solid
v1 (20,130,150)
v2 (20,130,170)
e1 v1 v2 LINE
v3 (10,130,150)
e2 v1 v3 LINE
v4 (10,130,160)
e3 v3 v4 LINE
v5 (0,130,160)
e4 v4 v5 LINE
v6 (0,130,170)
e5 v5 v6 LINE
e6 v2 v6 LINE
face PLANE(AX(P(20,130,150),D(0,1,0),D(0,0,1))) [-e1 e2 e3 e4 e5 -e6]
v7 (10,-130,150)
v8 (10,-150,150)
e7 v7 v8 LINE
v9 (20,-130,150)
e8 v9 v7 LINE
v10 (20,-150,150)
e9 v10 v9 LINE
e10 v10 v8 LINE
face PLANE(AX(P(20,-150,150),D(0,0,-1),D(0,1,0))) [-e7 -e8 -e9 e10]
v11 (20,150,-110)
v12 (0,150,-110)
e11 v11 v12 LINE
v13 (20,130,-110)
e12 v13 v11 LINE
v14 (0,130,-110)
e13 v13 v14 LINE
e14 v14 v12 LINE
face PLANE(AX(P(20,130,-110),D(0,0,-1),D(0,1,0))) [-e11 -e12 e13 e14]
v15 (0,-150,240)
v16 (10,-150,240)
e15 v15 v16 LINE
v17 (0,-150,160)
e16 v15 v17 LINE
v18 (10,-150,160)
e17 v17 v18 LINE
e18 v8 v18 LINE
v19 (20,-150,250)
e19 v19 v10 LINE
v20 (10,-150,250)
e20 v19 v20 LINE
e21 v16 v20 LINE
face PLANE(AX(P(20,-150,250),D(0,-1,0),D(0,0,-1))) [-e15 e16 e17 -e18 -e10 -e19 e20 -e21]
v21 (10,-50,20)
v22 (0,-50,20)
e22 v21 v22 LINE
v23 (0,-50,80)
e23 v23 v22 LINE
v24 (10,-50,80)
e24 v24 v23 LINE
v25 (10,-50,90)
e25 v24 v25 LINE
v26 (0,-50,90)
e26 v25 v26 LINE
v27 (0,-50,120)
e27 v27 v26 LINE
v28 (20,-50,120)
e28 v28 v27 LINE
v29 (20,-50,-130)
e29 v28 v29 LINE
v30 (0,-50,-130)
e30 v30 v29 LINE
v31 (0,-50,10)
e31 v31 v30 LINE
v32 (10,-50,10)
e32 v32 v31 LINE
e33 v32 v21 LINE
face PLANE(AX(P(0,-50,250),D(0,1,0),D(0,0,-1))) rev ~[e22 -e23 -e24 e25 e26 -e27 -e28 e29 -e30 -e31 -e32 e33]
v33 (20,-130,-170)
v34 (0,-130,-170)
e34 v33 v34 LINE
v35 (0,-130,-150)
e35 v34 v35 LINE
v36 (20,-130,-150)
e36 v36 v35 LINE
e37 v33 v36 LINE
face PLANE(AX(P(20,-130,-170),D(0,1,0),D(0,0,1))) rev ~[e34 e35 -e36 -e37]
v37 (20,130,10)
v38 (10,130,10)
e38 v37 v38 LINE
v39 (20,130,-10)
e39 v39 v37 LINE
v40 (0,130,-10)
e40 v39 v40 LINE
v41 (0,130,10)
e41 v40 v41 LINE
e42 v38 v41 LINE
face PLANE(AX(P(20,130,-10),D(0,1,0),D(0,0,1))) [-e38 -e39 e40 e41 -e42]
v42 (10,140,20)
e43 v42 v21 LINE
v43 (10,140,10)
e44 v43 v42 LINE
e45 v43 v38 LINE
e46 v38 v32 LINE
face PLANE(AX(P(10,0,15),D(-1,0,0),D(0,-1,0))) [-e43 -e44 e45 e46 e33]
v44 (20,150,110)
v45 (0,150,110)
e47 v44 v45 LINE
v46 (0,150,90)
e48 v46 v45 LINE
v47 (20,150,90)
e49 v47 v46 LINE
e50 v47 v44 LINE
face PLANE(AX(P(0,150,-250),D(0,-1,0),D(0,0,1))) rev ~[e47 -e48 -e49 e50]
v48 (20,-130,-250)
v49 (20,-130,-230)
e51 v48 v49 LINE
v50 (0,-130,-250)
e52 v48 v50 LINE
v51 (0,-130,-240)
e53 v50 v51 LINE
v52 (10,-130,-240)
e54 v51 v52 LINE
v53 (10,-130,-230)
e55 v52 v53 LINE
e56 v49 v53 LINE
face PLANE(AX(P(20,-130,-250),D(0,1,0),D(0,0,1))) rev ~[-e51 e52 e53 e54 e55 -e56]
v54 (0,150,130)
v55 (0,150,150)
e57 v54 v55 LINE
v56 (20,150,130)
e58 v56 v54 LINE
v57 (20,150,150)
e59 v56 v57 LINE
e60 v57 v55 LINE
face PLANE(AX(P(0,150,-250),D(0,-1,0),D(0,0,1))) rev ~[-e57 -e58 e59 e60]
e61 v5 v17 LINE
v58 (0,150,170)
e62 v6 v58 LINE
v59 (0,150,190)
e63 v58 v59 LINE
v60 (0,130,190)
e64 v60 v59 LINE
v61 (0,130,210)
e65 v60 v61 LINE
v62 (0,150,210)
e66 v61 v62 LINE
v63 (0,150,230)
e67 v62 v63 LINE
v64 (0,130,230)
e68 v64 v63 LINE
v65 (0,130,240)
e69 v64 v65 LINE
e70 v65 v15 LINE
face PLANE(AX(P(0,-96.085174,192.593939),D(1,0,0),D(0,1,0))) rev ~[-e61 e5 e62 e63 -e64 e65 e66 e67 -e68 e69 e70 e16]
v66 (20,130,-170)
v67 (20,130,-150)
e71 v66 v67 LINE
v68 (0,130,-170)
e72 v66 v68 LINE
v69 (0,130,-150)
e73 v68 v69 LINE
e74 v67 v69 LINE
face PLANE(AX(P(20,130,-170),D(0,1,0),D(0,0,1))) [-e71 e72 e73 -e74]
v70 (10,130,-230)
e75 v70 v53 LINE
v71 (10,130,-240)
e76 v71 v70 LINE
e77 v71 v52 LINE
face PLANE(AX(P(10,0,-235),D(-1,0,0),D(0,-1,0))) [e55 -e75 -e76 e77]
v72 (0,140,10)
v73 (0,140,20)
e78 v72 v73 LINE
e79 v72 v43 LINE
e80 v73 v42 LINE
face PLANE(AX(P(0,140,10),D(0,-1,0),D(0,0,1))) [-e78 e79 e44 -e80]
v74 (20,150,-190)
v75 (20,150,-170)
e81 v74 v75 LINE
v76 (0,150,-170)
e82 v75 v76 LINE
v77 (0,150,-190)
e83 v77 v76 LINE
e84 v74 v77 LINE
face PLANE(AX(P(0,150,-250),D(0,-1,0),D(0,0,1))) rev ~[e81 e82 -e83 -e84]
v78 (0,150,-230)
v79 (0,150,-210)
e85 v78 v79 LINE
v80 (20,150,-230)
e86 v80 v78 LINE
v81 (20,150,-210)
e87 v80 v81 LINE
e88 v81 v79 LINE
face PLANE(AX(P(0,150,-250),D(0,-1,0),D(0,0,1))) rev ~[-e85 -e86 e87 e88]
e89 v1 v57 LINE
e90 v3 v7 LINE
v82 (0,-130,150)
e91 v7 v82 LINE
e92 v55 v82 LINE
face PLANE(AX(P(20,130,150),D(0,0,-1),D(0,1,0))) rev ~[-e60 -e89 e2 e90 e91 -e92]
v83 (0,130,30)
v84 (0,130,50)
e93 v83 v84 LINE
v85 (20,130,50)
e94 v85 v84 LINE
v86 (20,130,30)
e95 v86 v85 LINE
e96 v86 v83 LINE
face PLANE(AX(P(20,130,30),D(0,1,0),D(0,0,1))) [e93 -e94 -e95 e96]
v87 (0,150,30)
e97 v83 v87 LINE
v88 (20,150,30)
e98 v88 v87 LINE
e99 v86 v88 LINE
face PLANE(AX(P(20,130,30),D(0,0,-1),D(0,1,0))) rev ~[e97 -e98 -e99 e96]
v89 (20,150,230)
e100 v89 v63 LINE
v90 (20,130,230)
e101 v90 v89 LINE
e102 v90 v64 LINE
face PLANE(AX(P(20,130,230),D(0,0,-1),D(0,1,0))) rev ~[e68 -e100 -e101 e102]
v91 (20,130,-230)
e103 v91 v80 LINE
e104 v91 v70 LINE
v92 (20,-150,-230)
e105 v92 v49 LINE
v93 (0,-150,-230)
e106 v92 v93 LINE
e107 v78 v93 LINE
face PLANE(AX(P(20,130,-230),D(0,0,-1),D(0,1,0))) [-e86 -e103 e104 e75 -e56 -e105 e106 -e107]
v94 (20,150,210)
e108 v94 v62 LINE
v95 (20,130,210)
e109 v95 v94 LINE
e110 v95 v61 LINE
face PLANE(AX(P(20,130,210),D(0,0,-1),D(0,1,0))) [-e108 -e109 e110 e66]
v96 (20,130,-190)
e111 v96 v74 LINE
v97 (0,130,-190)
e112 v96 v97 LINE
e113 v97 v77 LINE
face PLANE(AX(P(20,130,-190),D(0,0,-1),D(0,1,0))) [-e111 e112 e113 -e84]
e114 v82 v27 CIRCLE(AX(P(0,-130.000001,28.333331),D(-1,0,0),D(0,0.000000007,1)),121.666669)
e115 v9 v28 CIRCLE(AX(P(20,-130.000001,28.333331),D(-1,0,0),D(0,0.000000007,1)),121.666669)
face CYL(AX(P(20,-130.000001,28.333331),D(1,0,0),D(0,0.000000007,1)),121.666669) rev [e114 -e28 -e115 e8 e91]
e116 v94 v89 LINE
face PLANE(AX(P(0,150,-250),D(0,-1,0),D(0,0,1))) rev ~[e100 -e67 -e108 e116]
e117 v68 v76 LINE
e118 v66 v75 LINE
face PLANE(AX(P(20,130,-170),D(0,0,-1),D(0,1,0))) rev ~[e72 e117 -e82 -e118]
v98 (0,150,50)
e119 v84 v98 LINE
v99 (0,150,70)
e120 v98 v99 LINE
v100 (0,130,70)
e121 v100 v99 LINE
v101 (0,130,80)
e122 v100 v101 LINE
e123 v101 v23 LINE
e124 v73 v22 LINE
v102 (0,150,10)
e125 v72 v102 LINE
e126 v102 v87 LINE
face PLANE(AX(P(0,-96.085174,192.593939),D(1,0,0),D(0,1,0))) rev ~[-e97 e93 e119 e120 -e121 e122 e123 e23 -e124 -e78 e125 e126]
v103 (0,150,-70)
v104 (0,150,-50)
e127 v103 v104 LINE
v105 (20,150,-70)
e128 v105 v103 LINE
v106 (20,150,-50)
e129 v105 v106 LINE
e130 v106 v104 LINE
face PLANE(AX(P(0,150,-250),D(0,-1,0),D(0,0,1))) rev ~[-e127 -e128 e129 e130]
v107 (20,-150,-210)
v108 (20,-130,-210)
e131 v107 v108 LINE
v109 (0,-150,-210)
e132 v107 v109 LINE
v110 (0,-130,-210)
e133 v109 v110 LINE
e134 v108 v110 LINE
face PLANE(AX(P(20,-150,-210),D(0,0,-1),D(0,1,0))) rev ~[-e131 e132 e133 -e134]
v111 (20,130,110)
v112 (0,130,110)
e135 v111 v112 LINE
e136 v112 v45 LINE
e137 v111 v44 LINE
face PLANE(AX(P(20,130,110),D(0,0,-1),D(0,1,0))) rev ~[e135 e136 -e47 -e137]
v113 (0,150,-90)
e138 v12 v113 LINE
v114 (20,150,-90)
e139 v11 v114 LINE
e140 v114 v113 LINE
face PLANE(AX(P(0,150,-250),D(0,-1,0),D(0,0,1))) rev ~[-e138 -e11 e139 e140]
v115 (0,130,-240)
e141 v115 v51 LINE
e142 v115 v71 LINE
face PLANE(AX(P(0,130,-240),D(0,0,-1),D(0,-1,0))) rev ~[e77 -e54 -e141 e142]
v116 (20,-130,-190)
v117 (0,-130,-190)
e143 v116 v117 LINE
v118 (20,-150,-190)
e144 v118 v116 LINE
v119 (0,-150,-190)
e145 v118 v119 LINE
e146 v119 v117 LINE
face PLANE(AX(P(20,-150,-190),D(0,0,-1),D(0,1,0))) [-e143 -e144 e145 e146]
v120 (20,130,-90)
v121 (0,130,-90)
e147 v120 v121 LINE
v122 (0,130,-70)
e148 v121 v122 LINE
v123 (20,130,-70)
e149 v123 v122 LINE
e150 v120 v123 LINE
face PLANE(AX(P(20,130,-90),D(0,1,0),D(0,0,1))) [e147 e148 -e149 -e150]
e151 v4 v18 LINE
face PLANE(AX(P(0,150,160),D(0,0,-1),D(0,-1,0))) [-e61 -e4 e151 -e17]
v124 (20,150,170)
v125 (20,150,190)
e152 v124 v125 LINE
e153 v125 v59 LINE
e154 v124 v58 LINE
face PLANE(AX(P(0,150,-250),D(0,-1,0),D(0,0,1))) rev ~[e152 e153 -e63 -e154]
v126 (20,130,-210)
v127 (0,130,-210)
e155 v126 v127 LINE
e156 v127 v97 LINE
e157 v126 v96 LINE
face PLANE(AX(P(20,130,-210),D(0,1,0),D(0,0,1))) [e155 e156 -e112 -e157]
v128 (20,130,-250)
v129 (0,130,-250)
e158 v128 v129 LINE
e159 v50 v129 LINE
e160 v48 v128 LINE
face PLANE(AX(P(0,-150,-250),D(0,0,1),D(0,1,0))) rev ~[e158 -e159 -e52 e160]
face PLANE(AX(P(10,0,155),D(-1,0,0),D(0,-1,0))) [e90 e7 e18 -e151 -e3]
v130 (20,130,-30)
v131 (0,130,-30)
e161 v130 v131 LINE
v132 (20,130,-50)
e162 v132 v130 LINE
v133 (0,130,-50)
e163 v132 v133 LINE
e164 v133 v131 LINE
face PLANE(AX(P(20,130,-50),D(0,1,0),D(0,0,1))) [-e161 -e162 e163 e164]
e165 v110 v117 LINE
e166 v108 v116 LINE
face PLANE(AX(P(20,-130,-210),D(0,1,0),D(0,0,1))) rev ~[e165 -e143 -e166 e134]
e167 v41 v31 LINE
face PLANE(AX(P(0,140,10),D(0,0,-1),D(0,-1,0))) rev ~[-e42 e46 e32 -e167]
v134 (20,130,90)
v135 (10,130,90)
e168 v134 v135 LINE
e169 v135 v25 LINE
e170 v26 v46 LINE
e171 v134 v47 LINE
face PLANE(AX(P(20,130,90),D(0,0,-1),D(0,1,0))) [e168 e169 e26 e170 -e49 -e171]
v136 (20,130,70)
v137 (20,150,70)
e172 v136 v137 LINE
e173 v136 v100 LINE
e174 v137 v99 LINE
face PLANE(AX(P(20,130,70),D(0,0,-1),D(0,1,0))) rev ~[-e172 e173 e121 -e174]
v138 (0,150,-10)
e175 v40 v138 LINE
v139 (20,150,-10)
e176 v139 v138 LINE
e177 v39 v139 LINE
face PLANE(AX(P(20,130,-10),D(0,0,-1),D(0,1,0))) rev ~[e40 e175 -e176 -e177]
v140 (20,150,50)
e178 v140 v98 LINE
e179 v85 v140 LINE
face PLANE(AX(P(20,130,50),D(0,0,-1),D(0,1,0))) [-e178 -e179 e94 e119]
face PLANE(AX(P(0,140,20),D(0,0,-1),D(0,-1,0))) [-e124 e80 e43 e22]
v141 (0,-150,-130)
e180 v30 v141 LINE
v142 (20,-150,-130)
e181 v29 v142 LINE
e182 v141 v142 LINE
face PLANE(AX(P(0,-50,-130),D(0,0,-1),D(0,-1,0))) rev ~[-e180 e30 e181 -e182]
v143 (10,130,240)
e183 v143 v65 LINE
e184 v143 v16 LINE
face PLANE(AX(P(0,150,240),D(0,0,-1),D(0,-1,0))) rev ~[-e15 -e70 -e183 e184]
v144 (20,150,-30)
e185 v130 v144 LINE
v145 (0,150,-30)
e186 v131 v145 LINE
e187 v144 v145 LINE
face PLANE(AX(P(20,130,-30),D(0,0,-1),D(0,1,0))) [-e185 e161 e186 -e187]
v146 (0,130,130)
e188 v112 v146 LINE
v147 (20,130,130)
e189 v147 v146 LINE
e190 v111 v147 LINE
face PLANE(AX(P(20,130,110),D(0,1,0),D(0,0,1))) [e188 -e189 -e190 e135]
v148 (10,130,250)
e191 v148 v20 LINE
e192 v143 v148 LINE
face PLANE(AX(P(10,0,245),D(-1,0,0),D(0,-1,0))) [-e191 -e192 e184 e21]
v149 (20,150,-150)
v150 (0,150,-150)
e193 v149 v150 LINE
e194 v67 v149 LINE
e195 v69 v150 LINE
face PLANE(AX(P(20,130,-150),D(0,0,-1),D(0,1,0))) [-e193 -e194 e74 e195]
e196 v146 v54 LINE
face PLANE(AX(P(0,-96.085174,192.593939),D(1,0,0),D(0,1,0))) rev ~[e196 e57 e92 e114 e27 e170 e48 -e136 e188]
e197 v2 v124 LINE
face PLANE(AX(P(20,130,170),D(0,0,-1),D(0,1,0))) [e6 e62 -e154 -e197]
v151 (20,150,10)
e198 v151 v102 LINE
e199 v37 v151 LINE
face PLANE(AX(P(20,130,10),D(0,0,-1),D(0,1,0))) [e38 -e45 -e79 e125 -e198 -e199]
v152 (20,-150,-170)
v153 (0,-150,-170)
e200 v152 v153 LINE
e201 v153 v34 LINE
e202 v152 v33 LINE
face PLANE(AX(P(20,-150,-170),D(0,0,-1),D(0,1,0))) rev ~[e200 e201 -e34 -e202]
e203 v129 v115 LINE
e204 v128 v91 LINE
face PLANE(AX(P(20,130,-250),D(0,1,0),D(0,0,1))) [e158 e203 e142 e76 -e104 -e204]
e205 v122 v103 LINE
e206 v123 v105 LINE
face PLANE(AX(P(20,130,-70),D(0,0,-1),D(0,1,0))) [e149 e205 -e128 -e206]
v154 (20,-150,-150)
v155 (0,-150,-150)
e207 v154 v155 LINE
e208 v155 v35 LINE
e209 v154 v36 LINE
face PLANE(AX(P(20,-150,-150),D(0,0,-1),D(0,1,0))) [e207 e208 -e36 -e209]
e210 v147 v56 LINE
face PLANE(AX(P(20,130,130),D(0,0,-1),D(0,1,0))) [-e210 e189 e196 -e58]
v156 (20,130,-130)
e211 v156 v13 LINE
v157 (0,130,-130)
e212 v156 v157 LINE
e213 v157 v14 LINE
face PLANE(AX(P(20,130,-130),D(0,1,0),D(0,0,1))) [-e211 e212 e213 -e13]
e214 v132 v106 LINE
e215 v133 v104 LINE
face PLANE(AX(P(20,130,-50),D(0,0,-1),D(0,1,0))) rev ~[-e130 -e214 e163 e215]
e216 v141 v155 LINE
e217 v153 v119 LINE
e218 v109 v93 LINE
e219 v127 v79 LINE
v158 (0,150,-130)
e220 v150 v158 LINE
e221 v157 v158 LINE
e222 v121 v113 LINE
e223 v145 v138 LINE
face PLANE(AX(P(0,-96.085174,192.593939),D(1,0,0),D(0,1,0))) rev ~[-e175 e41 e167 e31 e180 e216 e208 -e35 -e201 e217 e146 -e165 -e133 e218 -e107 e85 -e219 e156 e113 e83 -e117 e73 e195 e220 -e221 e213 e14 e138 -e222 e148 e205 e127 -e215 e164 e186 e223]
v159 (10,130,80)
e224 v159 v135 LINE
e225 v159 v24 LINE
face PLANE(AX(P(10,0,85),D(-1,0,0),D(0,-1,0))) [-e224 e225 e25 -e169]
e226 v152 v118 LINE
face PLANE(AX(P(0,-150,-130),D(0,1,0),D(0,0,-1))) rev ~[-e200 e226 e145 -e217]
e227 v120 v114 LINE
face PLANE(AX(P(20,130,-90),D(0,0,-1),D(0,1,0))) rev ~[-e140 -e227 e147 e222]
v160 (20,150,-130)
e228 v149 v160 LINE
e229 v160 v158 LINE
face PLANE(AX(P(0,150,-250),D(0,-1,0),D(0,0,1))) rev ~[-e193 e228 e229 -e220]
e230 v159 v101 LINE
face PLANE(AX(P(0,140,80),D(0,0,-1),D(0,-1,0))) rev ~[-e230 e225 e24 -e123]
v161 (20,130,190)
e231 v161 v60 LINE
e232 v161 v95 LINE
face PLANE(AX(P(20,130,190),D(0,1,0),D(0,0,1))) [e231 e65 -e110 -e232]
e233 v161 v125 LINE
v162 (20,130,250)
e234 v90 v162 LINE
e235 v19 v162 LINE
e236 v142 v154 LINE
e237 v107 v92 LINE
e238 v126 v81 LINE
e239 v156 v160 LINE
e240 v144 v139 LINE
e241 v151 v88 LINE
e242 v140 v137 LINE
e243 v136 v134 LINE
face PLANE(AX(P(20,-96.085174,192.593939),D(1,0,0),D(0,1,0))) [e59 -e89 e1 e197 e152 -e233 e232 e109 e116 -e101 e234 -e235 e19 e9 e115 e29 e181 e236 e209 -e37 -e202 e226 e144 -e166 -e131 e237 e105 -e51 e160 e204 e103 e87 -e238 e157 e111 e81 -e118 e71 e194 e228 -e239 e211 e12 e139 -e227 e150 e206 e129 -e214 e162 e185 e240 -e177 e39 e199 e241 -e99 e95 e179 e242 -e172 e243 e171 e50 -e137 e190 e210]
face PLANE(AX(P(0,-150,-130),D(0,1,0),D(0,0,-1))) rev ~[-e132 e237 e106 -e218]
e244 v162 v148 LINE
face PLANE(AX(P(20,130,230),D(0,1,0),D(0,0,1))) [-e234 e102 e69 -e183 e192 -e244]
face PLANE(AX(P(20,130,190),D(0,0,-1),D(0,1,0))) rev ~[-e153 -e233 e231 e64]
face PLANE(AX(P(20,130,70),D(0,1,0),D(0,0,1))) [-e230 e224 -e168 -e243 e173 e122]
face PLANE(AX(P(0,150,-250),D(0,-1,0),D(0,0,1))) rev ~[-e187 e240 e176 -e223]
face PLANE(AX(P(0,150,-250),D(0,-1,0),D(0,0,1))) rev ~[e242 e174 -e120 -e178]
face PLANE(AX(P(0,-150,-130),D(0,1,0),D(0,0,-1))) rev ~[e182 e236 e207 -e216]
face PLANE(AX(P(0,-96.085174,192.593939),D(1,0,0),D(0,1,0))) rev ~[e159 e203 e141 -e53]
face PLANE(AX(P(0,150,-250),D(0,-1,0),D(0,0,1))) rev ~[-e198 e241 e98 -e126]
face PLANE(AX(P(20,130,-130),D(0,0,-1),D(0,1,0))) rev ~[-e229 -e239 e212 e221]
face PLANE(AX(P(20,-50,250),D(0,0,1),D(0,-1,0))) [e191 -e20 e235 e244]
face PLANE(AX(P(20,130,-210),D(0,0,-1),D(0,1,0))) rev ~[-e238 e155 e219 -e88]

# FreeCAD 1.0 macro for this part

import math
import FreeCAD as App
import Part
import Sketcher

doc = App.newDocument("Part")
body = doc.addObject("PartDesign::Body", "Body")

sketch1 = body.newObject("Sketcher::SketchObject", "Sketch")
sketch1.AttachmentSupport = (doc.getObject("YZ_Plane"), [""])
sketch1.MapMode = "FlatFace"
sketch1.addGeometry(Part.LineSegment(App.Vector(-150, -250, 0), App.Vector(150, -250, 0)), False)
sketch1.addGeometry(Part.LineSegment(App.Vector(150, -250, 0), App.Vector(150, 250, 0)), False)
sketch1.addGeometry(Part.LineSegment(App.Vector(150, 250, 0), App.Vector(-50, 250, 0)), False)
sketch1.addGeometry(Part.LineSegment(App.Vector(-50, 250, 0), App.Vector(-50, -130, 0)), False)
sketch1.addGeometry(Part.LineSegment(App.Vector(-50, -130, 0), App.Vector(-150, -130, 0)), False)
sketch1.addGeometry(Part.LineSegment(App.Vector(-150, -130, 0), App.Vector(-150, -250, 0)), False)
sketch1.addConstraint(Sketcher.Constraint("Coincident", 0, 2, 1, 1))
sketch1.addConstraint(Sketcher.Constraint("Coincident", 1, 2, 2, 1))
sketch1.addConstraint(Sketcher.Constraint("Coincident", 2, 2, 3, 1))
sketch1.addConstraint(Sketcher.Constraint("Coincident", 3, 2, 4, 1))
sketch1.addConstraint(Sketcher.Constraint("Coincident", 4, 2, 5, 1))
sketch1.addConstraint(Sketcher.Constraint("Coincident", 5, 2, 0, 1))
sketch1.addConstraint(Sketcher.Constraint("Horizontal", 0))
sketch1.addConstraint(Sketcher.Constraint("Vertical", 1))
sketch1.addConstraint(Sketcher.Constraint("Horizontal", 2))
sketch1.addConstraint(Sketcher.Constraint("Vertical", 3))
sketch1.addConstraint(Sketcher.Constraint("Horizontal", 4))
sketch1.addConstraint(Sketcher.Constraint("Vertical", 5))
sketch1.addConstraint(Sketcher.Constraint("Symmetric", 1, 2, 5, 2, -1, 1))
sketch1.addConstraint(Sketcher.Constraint("DistanceX", 0, 1, 0, 2, 300.0))
sketch1.addConstraint(Sketcher.Constraint("DistanceX", 2, 2, 2, 1, 200.0))
sketch1.addConstraint(Sketcher.Constraint("DistanceY", 1, 1, 1, 2, 500.0))
sketch1.addConstraint(Sketcher.Constraint("DistanceY", 3, 2, 3, 1, 380.0))
pad1 = body.newObject("PartDesign::Pad", "Pad")
pad1.Profile = sketch1
pad1.Length = 20

sketch2 = body.newObject("Sketcher::SketchObject", "Sketch001")
sketch2.AttachmentSupport = (doc.getObject("YZ_Plane"), [""])
sketch2.MapMode = "FlatFace"
sketch2.AttachmentOffset = App.Placement(App.Vector(0, 0, 20), App.Rotation())
sketch2.addGeometry(Part.LineSegment(App.Vector(-50, 120, 0), App.Vector(-50, 250, 0)), False)
sketch2.addGeometry(Part.LineSegment(App.Vector(-50, 250, 0), App.Vector(-150, 250, 0)), False)
sketch2.addGeometry(Part.LineSegment(App.Vector(-150, 250, 0), App.Vector(-150, 150, 0)), False)
sketch2.addGeometry(Part.LineSegment(App.Vector(-150, 150, 0), App.Vector(-130, 150, 0)), False)
sketch2.addGeometry(Part.ArcOfCircle(Part.Circle(App.Vector(-130, 28, 0), App.Vector(0, 0, 1), 122), math.radians(49), math.radians(90)), False)
sketch2.addConstraint(Sketcher.Constraint("Coincident", 0, 2, 1, 1))
sketch2.addConstraint(Sketcher.Constraint("Coincident", 1, 2, 2, 1))
sketch2.addConstraint(Sketcher.Constraint("Coincident", 2, 2, 3, 1))
sketch2.addConstraint(Sketcher.Constraint("Tangent", 3, 2, 4, 2))
sketch2.addConstraint(Sketcher.Constraint("Coincident", 4, 1, 0, 1))
sketch2.addConstraint(Sketcher.Constraint("Vertical", 0))
sketch2.addConstraint(Sketcher.Constraint("Horizontal", 1))
sketch2.addConstraint(Sketcher.Constraint("Vertical", 2))
sketch2.addConstraint(Sketcher.Constraint("Horizontal", 3))
sketch2.addConstraint(Sketcher.Constraint("Equal", 1, 2))
sketch2.addConstraint(Sketcher.Constraint("DistanceX", 1, 2, 1, 1, 100.0))
sketch2.addConstraint(Sketcher.Constraint("DistanceX", 3, 1, 3, 2, 20.0))
sketch2.addConstraint(Sketcher.Constraint("DistanceY", 0, 1, 0, 2, 130.0))
sketch2.addConstraint(Sketcher.Constraint("DistanceX", 4, 3, -1, 1, 130.000001))
sketch2.addConstraint(Sketcher.Constraint("DistanceY", -1, 1, 0, 2, 250.0))
pad2 = body.newObject("PartDesign::Pad", "Pad001")
pad2.Profile = sketch2
pad2.Length = 20
pad2.Reversed = True

sketch3 = body.newObject("Sketcher::SketchObject", "Sketch002")
sketch3.AttachmentSupport = (doc.getObject("YZ_Plane"), [""])
sketch3.MapMode = "FlatFace"
sketch3.AttachmentOffset = App.Placement(App.Vector(0, 0, 20), App.Rotation())
sketch3.addGeometry(Part.LineSegment(App.Vector(130, -190, 0), App.Vector(130, -210, 0)), False)
sketch3.addGeometry(Part.LineSegment(App.Vector(130, -210, 0), App.Vector(150, -210, 0)), False)
sketch3.addGeometry(Part.LineSegment(App.Vector(150, -210, 0), App.Vector(150, -190, 0)), False)
sketch3.addGeometry(Part.LineSegment(App.Vector(150, -190, 0), App.Vector(130, -190, 0)), False)
sketch3.addGeometry(Part.LineSegment(App.Vector(130, -150, 0), App.Vector(130, -170, 0)), False)
sketch3.addGeometry(Part.LineSegment(App.Vector(130, -170, 0), App.Vector(150, -170, 0)), False)
sketch3.addGeometry(Part.LineSegment(App.Vector(150, -170, 0), App.Vector(150, -150, 0)), False)
sketch3.addGeometry(Part.LineSegment(App.Vector(150, -150, 0), App.Vector(130, -150, 0)), False)
sketch3.addGeometry(Part.LineSegment(App.Vector(130, -110, 0), App.Vector(130, -130, 0)), False)
sketch3.addGeometry(Part.LineSegment(App.Vector(130, -130, 0), App.Vector(150, -130, 0)), False)
sketch3.addGeometry(Part.LineSegment(App.Vector(150, -130, 0), App.Vector(150, -110, 0)), False)
sketch3.addGeometry(Part.LineSegment(App.Vector(150, -110, 0), App.Vector(130, -110, 0)), False)
sketch3.addGeometry(Part.LineSegment(App.Vector(130, -70, 0), App.Vector(130, -90, 0)), False)
sketch3.addGeometry(Part.LineSegment(App.Vector(130, -90, 0), App.Vector(150, -90, 0)), False)
sketch3.addGeometry(Part.LineSegment(App.Vector(150, -90, 0), App.Vector(150, -70, 0)), False)
sketch3.addGeometry(Part.LineSegment(App.Vector(150, -70, 0), App.Vector(130, -70, 0)), False)
sketch3.addGeometry(Part.LineSegment(App.Vector(130, -30, 0), App.Vector(130, -50, 0)), False)
sketch3.addGeometry(Part.LineSegment(App.Vector(130, -50, 0), App.Vector(150, -50, 0)), False)
sketch3.addGeometry(Part.LineSegment(App.Vector(150, -50, 0), App.Vector(150, -30, 0)), False)
sketch3.addGeometry(Part.LineSegment(App.Vector(150, -30, 0), App.Vector(130, -30, 0)), False)
sketch3.addGeometry(Part.LineSegment(App.Vector(130, 10, 0), App.Vector(130, -10, 0)), False)
sketch3.addGeometry(Part.LineSegment(App.Vector(130, -10, 0), App.Vector(150, -10, 0)), False)
sketch3.addGeometry(Part.LineSegment(App.Vector(150, -10, 0), App.Vector(150, 10, 0)), False)
sketch3.addGeometry(Part.LineSegment(App.Vector(150, 10, 0), App.Vector(130, 10, 0)), False)
sketch3.addGeometry(Part.LineSegment(App.Vector(130, 50, 0), App.Vector(130, 30, 0)), False)
sketch3.addGeometry(Part.LineSegment(App.Vector(130, 30, 0), App.Vector(150, 30, 0)), False)
sketch3.addGeometry(Part.LineSegment(App.Vector(150, 30, 0), App.Vector(150, 50, 0)), False)
sketch3.addGeometry(Part.LineSegment(App.Vector(150, 50, 0), App.Vector(130, 50, 0)), False)
sketch3.addGeometry(Part.LineSegment(App.Vector(130, 90, 0), App.Vector(130, 70, 0)), False)
sketch3.addGeometry(Part.LineSegment(App.Vector(130, 70, 0), App.Vector(150, 70, 0)), False)
sketch3.addGeometry(Part.LineSegment(App.Vector(150, 70, 0), App.Vector(150, 90, 0)), False)
sketch3.addGeometry(Part.LineSegment(App.Vector(150, 90, 0), App.Vector(130, 90, 0)), False)
sketch3.addGeometry(Part.LineSegment(App.Vector(130, 130, 0), App.Vector(130, 110, 0)), False)
sketch3.addGeometry(Part.LineSegment(App.Vector(130, 110, 0), App.Vector(150, 110, 0)), False)
sketch3.addGeometry(Part.LineSegment(App.Vector(150, 110, 0), App.Vector(150, 130, 0)), False)
sketch3.addGeometry(Part.LineSegment(App.Vector(150, 130, 0), App.Vector(130, 130, 0)), False)
sketch3.addGeometry(Part.LineSegment(App.Vector(130, 170, 0), App.Vector(130, 150, 0)), False)
sketch3.addGeometry(Part.LineSegment(App.Vector(130, 150, 0), App.Vector(150, 150, 0)), False)
sketch3.addGeometry(Part.LineSegment(App.Vector(150, 150, 0), App.Vector(150, 170, 0)), False)
sketch3.addGeometry(Part.LineSegment(App.Vector(150, 170, 0), App.Vector(130, 170, 0)), False)
sketch3.addGeometry(Part.LineSegment(App.Vector(130, 210, 0), App.Vector(130, 190, 0)), False)
sketch3.addGeometry(Part.LineSegment(App.Vector(130, 190, 0), App.Vector(150, 190, 0)), False)
sketch3.addGeometry(Part.LineSegment(App.Vector(150, 190, 0), App.Vector(150, 210, 0)), False)
sketch3.addGeometry(Part.LineSegment(App.Vector(150, 210, 0), App.Vector(130, 210, 0)), False)
sketch3.addGeometry(Part.LineSegment(App.Vector(130, 250, 0), App.Vector(130, 230, 0)), False)
sketch3.addGeometry(Part.LineSegment(App.Vector(130, 230, 0), App.Vector(150, 230, 0)), False)
sketch3.addGeometry(Part.LineSegment(App.Vector(150, 230, 0), App.Vector(150, 250, 0)), False)
sketch3.addGeometry(Part.LineSegment(App.Vector(150, 250, 0), App.Vector(130, 250, 0)), False)
sketch3.addGeometry(Part.LineSegment(App.Vector(130, -230, 0), App.Vector(130, -250, 0)), False)
sketch3.addGeometry(Part.LineSegment(App.Vector(130, -250, 0), App.Vector(150, -250, 0)), False)
sketch3.addGeometry(Part.LineSegment(App.Vector(150, -250, 0), App.Vector(150, -230, 0)), False)
sketch3.addGeometry(Part.LineSegment(App.Vector(150, -230, 0), App.Vector(130, -230, 0)), False)
sketch3.addConstraint(Sketcher.Constraint("Coincident", 0, 2, 1, 1))
sketch3.addConstraint(Sketcher.Constraint("Coincident", 1, 2, 2, 1))
sketch3.addConstraint(Sketcher.Constraint("Coincident", 2, 2, 3, 1))
sketch3.addConstraint(Sketcher.Constraint("Coincident", 3, 2, 0, 1))
sketch3.addConstraint(Sketcher.Constraint("Coincident", 4, 2, 5, 1))
sketch3.addConstraint(Sketcher.Constraint("Coincident", 5, 2, 6, 1))
sketch3.addConstraint(Sketcher.Constraint("Coincident", 6, 2, 7, 1))
sketch3.addConstraint(Sketcher.Constraint("Coincident", 7, 2, 4, 1))
sketch3.addConstraint(Sketcher.Constraint("Coincident", 8, 2, 9, 1))
sketch3.addConstraint(Sketcher.Constraint("Coincident", 9, 2, 10, 1))
sketch3.addConstraint(Sketcher.Constraint("Coincident", 10, 2, 11, 1))
sketch3.addConstraint(Sketcher.Constraint("Coincident", 11, 2, 8, 1))
sketch3.addConstraint(Sketcher.Constraint("Coincident", 12, 2, 13, 1))
sketch3.addConstraint(Sketcher.Constraint("Coincident", 13, 2, 14, 1))
sketch3.addConstraint(Sketcher.Constraint("Coincident", 14, 2, 15, 1))
sketch3.addConstraint(Sketcher.Constraint("Coincident", 15, 2, 12, 1))
sketch3.addConstraint(Sketcher.Constraint("Coincident", 16, 2, 17, 1))
sketch3.addConstraint(Sketcher.Constraint("Coincident", 17, 2, 18, 1))
sketch3.addConstraint(Sketcher.Constraint("Coincident", 18, 2, 19, 1))
sketch3.addConstraint(Sketcher.Constraint("Coincident", 19, 2, 16, 1))
sketch3.addConstraint(Sketcher.Constraint("Coincident", 20, 2, 21, 1))
sketch3.addConstraint(Sketcher.Constraint("Coincident", 21, 2, 22, 1))
sketch3.addConstraint(Sketcher.Constraint("Coincident", 22, 2, 23, 1))
sketch3.addConstraint(Sketcher.Constraint("Coincident", 23, 2, 20, 1))
sketch3.addConstraint(Sketcher.Constraint("Coincident", 24, 2, 25, 1))
sketch3.addConstraint(Sketcher.Constraint("Coincident", 25, 2, 26, 1))
sketch3.addConstraint(Sketcher.Constraint("Coincident", 26, 2, 27, 1))
sketch3.addConstraint(Sketcher.Constraint("Coincident", 27, 2, 24, 1))
sketch3.addConstraint(Sketcher.Constraint("Coincident", 28, 2, 29, 1))
sketch3.addConstraint(Sketcher.Constraint("Coincident", 29, 2, 30, 1))
sketch3.addConstraint(Sketcher.Constraint("Coincident", 30, 2, 31, 1))
sketch3.addConstraint(Sketcher.Constraint("Coincident", 31, 2, 28, 1))
sketch3.addConstraint(Sketcher.Constraint("Coincident", 32, 2, 33, 1))
sketch3.addConstraint(Sketcher.Constraint("Coincident", 33, 2, 34, 1))
sketch3.addConstraint(Sketcher.Constraint("Coincident", 34, 2, 35, 1))
sketch3.addConstraint(Sketcher.Constraint("Coincident", 35, 2, 32, 1))
sketch3.addConstraint(Sketcher.Constraint("Coincident", 36, 2, 37, 1))
sketch3.addConstraint(Sketcher.Constraint("Coincident", 37, 2, 38, 1))
sketch3.addConstraint(Sketcher.Constraint("Coincident", 38, 2, 39, 1))
sketch3.addConstraint(Sketcher.Constraint("Coincident", 39, 2, 36, 1))
sketch3.addConstraint(Sketcher.Constraint("Coincident", 40, 2, 41, 1))
sketch3.addConstraint(Sketcher.Constraint("Coincident", 41, 2, 42, 1))
sketch3.addConstraint(Sketcher.Constraint("Coincident", 42, 2, 43, 1))
sketch3.addConstraint(Sketcher.Constraint("Coincident", 43, 2, 40, 1))
sketch3.addConstraint(Sketcher.Constraint("Coincident", 44, 2, 45, 1))
sketch3.addConstraint(Sketcher.Constraint("Coincident", 45, 2, 46, 1))
sketch3.addConstraint(Sketcher.Constraint("Coincident", 46, 2, 47, 1))
sketch3.addConstraint(Sketcher.Constraint("Coincident", 47, 2, 44, 1))
sketch3.addConstraint(Sketcher.Constraint("Coincident", 48, 2, 49, 1))
sketch3.addConstraint(Sketcher.Constraint("Coincident", 49, 2, 50, 1))
sketch3.addConstraint(Sketcher.Constraint("Coincident", 50, 2, 51, 1))
sketch3.addConstraint(Sketcher.Constraint("Coincident", 51, 2, 48, 1))
sketch3.addConstraint(Sketcher.Constraint("Vertical", 0))
sketch3.addConstraint(Sketcher.Constraint("Horizontal", 1))
sketch3.addConstraint(Sketcher.Constraint("Vertical", 2))
sketch3.addConstraint(Sketcher.Constraint("Horizontal", 3))
sketch3.addConstraint(Sketcher.Constraint("Vertical", 4))
sketch3.addConstraint(Sketcher.Constraint("Horizontal", 5))
sketch3.addConstraint(Sketcher.Constraint("Vertical", 6))
sketch3.addConstraint(Sketcher.Constraint("Horizontal", 7))
sketch3.addConstraint(Sketcher.Constraint("Vertical", 8))
sketch3.addConstraint(Sketcher.Constraint("Horizontal", 9))
sketch3.addConstraint(Sketcher.Constraint("Vertical", 10))
sketch3.addConstraint(Sketcher.Constraint("Horizontal", 11))
sketch3.addConstraint(Sketcher.Constraint("Vertical", 12))
sketch3.addConstraint(Sketcher.Constraint("Horizontal", 13))
sketch3.addConstraint(Sketcher.Constraint("Vertical", 14))
sketch3.addConstraint(Sketcher.Constraint("Horizontal", 15))
sketch3.addConstraint(Sketcher.Constraint("Vertical", 16))
sketch3.addConstraint(Sketcher.Constraint("Horizontal", 17))
sketch3.addConstraint(Sketcher.Constraint("Vertical", 18))
sketch3.addConstraint(Sketcher.Constraint("Horizontal", 19))
sketch3.addConstraint(Sketcher.Constraint("Vertical", 20))
sketch3.addConstraint(Sketcher.Constraint("Horizontal", 21))
sketch3.addConstraint(Sketcher.Constraint("Vertical", 22))
sketch3.addConstraint(Sketcher.Constraint("Horizontal", 23))
sketch3.addConstraint(Sketcher.Constraint("Vertical", 24))
sketch3.addConstraint(Sketcher.Constraint("Horizontal", 25))
sketch3.addConstraint(Sketcher.Constraint("Vertical", 26))
sketch3.addConstraint(Sketcher.Constraint("Horizontal", 27))
sketch3.addConstraint(Sketcher.Constraint("Vertical", 28))
sketch3.addConstraint(Sketcher.Constraint("Horizontal", 29))
sketch3.addConstraint(Sketcher.Constraint("Vertical", 30))
sketch3.addConstraint(Sketcher.Constraint("Horizontal", 31))
sketch3.addConstraint(Sketcher.Constraint("Vertical", 32))
sketch3.addConstraint(Sketcher.Constraint("Horizontal", 33))
sketch3.addConstraint(Sketcher.Constraint("Vertical", 34))
sketch3.addConstraint(Sketcher.Constraint("Horizontal", 35))
sketch3.addConstraint(Sketcher.Constraint("Vertical", 36))
sketch3.addConstraint(Sketcher.Constraint("Horizontal", 37))
sketch3.addConstraint(Sketcher.Constraint("Vertical", 38))
sketch3.addConstraint(Sketcher.Constraint("Horizontal", 39))
sketch3.addConstraint(Sketcher.Constraint("Vertical", 40))
sketch3.addConstraint(Sketcher.Constraint("Horizontal", 41))
sketch3.addConstraint(Sketcher.Constraint("Vertical", 42))
sketch3.addConstraint(Sketcher.Constraint("Horizontal", 43))
sketch3.addConstraint(Sketcher.Constraint("Vertical", 44))
sketch3.addConstraint(Sketcher.Constraint("Horizontal", 45))
sketch3.addConstraint(Sketcher.Constraint("Vertical", 46))
sketch3.addConstraint(Sketcher.Constraint("Horizontal", 47))
sketch3.addConstraint(Sketcher.Constraint("Vertical", 48))
sketch3.addConstraint(Sketcher.Constraint("Horizontal", 49))
sketch3.addConstraint(Sketcher.Constraint("Vertical", 50))
sketch3.addConstraint(Sketcher.Constraint("Horizontal", 51))
sketch3.addConstraint(Sketcher.Constraint("Symmetric", 19, 2, 24, 2, -1))
sketch3.addConstraint(Sketcher.Constraint("Symmetric", 17, 2, 26, 2, -1))
sketch3.addConstraint(Sketcher.Constraint("Symmetric", 15, 2, 28, 2, -1))
sketch3.addConstraint(Sketcher.Constraint("Symmetric", 13, 2, 30, 2, -1))
sketch3.addConstraint(Sketcher.Constraint("Symmetric", 11, 2, 32, 2, -1))
sketch3.addConstraint(Sketcher.Constraint("Symmetric", 9, 2, 34, 2, -1))
sketch3.addConstraint(Sketcher.Constraint("Symmetric", 7, 2, 36, 2, -1))
sketch3.addConstraint(Sketcher.Constraint("Symmetric", 5, 2, 38, 2, -1))
sketch3.addConstraint(Sketcher.Constraint("Symmetric", 3, 2, 40, 2, -1))
sketch3.addConstraint(Sketcher.Constraint("Symmetric", 1, 2, 42, 2, -1))
sketch3.addConstraint(Sketcher.Constraint("Symmetric", 47, 2, 48, 2, -1))
sketch3.addConstraint(Sketcher.Constraint("Symmetric", 45, 2, 50, 2, -1))
sketch3.addConstraint(Sketcher.Constraint("Vertical", 3, 2, 4, 2))
sketch3.addConstraint(Sketcher.Constraint("Vertical", 2, 2, 5, 2))
sketch3.addConstraint(Sketcher.Constraint("Vertical", 7, 2, 8, 2))
sketch3.addConstraint(Sketcher.Constraint("Vertical", 6, 2, 9, 2))
sketch3.addConstraint(Sketcher.Constraint("Vertical", 11, 2, 12, 2))
sketch3.addConstraint(Sketcher.Constraint("Vertical", 10, 2, 13, 2))
sketch3.addConstraint(Sketcher.Constraint("Vertical", 15, 2, 16, 2))
sketch3.addConstraint(Sketcher.Constraint("Vertical", 14, 2, 17, 2))
sketch3.addConstraint(Sketcher.Constraint("Vertical", 19, 2, 20, 2))
sketch3.addConstraint(Sketcher.Constraint("Vertical", 18, 2, 21, 2))
sketch3.addConstraint(Sketcher.Constraint("Vertical", 43, 2, 44, 2))
sketch3.addConstraint(Sketcher.Constraint("Vertical", 42, 2, 45, 2))
sketch3.addConstraint(Sketcher.Constraint("Equal", 51, 0))
sketch3.addConstraint(Sketcher.Constraint("Equal", 2, 4))
sketch3.addConstraint(Sketcher.Constraint("Equal", 6, 8))
sketch3.addConstraint(Sketcher.Constraint("Equal", 10, 12))
sketch3.addConstraint(Sketcher.Constraint("Equal", 14, 16))
sketch3.addConstraint(Sketcher.Constraint("Equal", 18, 20))
sketch3.addConstraint(Sketcher.Constraint("Equal", 42, 44))
sketch3.addConstraint(Sketcher.Constraint("DistanceX", 1, 1, 1, 2, 20.0))
sketch3.addConstraint(Sketcher.Constraint("DistanceX", -1, 1, 0, 2, 130.0))
sketch3.addConstraint(Sketcher.Constraint("DistanceY", 0, 2, -1, 1, 210.0))
sketch3.addConstraint(Sketcher.Constraint("DistanceY", 4, 2, -1, 1, 170.0))
sketch3.addConstraint(Sketcher.Constraint("DistanceY", 8, 2, -1, 1, 130.0))
sketch3.addConstraint(Sketcher.Constraint("DistanceY", 12, 2, -1, 1, 90.0))
sketch3.addConstraint(Sketcher.Constraint("DistanceY", 16, 2, -1, 1, 50.0))
sketch3.addConstraint(Sketcher.Constraint("DistanceY", 20, 2, -1, 1, 10.0))
sketch3.addConstraint(Sketcher.Constraint("DistanceY", -1, 1, 44, 2, 230.0))
pocket1 = body.newObject("PartDesign::Pocket", "Pocket")
pocket1.Profile = sketch3
pocket1.Type = "ThroughAll"

sketch4 = body.newObject("Sketcher::SketchObject", "Sketch003")
sketch4.AttachmentSupport = (doc.getObject("YZ_Plane"), [""])
sketch4.MapMode = "FlatFace"
sketch4.AttachmentOffset = App.Placement(App.Vector(0, 0, 20), App.Rotation())
sketch4.addGeometry(Part.LineSegment(App.Vector(-150, -190, 0), App.Vector(-150, -210, 0)), False)
sketch4.addGeometry(Part.LineSegment(App.Vector(-150, -210, 0), App.Vector(-130, -210, 0)), False)
sketch4.addGeometry(Part.LineSegment(App.Vector(-130, -210, 0), App.Vector(-130, -190, 0)), False)
sketch4.addGeometry(Part.LineSegment(App.Vector(-130, -190, 0), App.Vector(-150, -190, 0)), False)
sketch4.addGeometry(Part.LineSegment(App.Vector(-150, -150, 0), App.Vector(-150, -170, 0)), False)
sketch4.addGeometry(Part.LineSegment(App.Vector(-150, -170, 0), App.Vector(-130, -170, 0)), False)
sketch4.addGeometry(Part.LineSegment(App.Vector(-130, -170, 0), App.Vector(-130, -150, 0)), False)
sketch4.addGeometry(Part.LineSegment(App.Vector(-130, -150, 0), App.Vector(-150, -150, 0)), False)
sketch4.addGeometry(Part.LineSegment(App.Vector(-150, -230, 0), App.Vector(-150, -250, 0)), False)
sketch4.addGeometry(Part.LineSegment(App.Vector(-150, -250, 0), App.Vector(-130, -250, 0)), False)
sketch4.addGeometry(Part.LineSegment(App.Vector(-130, -250, 0), App.Vector(-130, -230, 0)), False)
sketch4.addGeometry(Part.LineSegment(App.Vector(-130, -230, 0), App.Vector(-150, -230, 0)), False)
sketch4.addConstraint(Sketcher.Constraint("Coincident", 0, 2, 1, 1))
sketch4.addConstraint(Sketcher.Constraint("Coincident", 1, 2, 2, 1))
sketch4.addConstraint(Sketcher.Constraint("Coincident", 2, 2, 3, 1))
sketch4.addConstraint(Sketcher.Constraint("Coincident", 3, 2, 0, 1))
sketch4.addConstraint(Sketcher.Constraint("Coincident", 4, 2, 5, 1))
sketch4.addConstraint(Sketcher.Constraint("Coincident", 5, 2, 6, 1))
sketch4.addConstraint(Sketcher.Constraint("Coincident", 6, 2, 7, 1))
sketch4.addConstraint(Sketcher.Constraint("Coincident", 7, 2, 4, 1))
sketch4.addConstraint(Sketcher.Constraint("Coincident", 8, 2, 9, 1))
sketch4.addConstraint(Sketcher.Constraint("Coincident", 9, 2, 10, 1))
sketch4.addConstraint(Sketcher.Constraint("Coincident", 10, 2, 11, 1))
sketch4.addConstraint(Sketcher.Constraint("Coincident", 11, 2, 8, 1))
sketch4.addConstraint(Sketcher.Constraint("Vertical", 0))
sketch4.addConstraint(Sketcher.Constraint("Horizontal", 1))
sketch4.addConstraint(Sketcher.Constraint("Vertical", 2))
sketch4.addConstraint(Sketcher.Constraint("Horizontal", 3))
sketch4.addConstraint(Sketcher.Constraint("Vertical", 4))
sketch4.addConstraint(Sketcher.Constraint("Horizontal", 5))
sketch4.addConstraint(Sketcher.Constraint("Vertical", 6))
sketch4.addConstraint(Sketcher.Constraint("Horizontal", 7))
sketch4.addConstraint(Sketcher.Constraint("Vertical", 8))
sketch4.addConstraint(Sketcher.Constraint("Horizontal", 9))
sketch4.addConstraint(Sketcher.Constraint("Vertical", 10))
sketch4.addConstraint(Sketcher.Constraint("Horizontal", 11))
sketch4.addConstraint(Sketcher.Constraint("Vertical", 3, 2, 4, 2))
sketch4.addConstraint(Sketcher.Constraint("Vertical", 2, 2, 5, 2))
sketch4.addConstraint(Sketcher.Constraint("Vertical", 7, 2, 8, 2))
sketch4.addConstraint(Sketcher.Constraint("Vertical", 6, 2, 9, 2))
sketch4.addConstraint(Sketcher.Constraint("Equal", 11, 0))
sketch4.addConstraint(Sketcher.Constraint("Equal", 2, 4))
sketch4.addConstraint(Sketcher.Constraint("Equal", 6, 8))
sketch4.addConstraint(Sketcher.Constraint("DistanceX", 1, 1, 1, 2, 20.0))
sketch4.addConstraint(Sketcher.Constraint("DistanceX", 0, 2, -1, 1, 150.0))
sketch4.addConstraint(Sketcher.Constraint("DistanceY", 0, 2, -1, 1, 210.0))
sketch4.addConstraint(Sketcher.Constraint("DistanceY", 4, 2, -1, 1, 170.0))
sketch4.addConstraint(Sketcher.Constraint("DistanceY", 8, 2, -1, 1, 250.0))
pocket2 = body.newObject("PartDesign::Pocket", "Pocket001")
pocket2.Profile = sketch4
pocket2.Type = "ThroughAll"

sketch5 = body.newObject("Sketcher::SketchObject", "Sketch004")
sketch5.AttachmentSupport = (doc.getObject("YZ_Plane"), [""])
sketch5.MapMode = "FlatFace"
sketch5.addGeometry(Part.LineSegment(App.Vector(130, -230, 0), App.Vector(130, -240, 0)), False)
sketch5.addGeometry(Part.LineSegment(App.Vector(130, -240, 0), App.Vector(-130, -240, 0)), False)
sketch5.addGeometry(Part.LineSegment(App.Vector(-130, -240, 0), App.Vector(-130, -230, 0)), False)
sketch5.addGeometry(Part.LineSegment(App.Vector(-130, -230, 0), App.Vector(130, -230, 0)), False)
sketch5.addConstraint(Sketcher.Constraint("Coincident", 0, 2, 1, 1))
sketch5.addConstraint(Sketcher.Constraint("Coincident", 1, 2, 2, 1))
sketch5.addConstraint(Sketcher.Constraint("Coincident", 2, 2, 3, 1))
sketch5.addConstraint(Sketcher.Constraint("Coincident", 3, 2, 0, 1))
sketch5.addConstraint(Sketcher.Constraint("Vertical", 0))
sketch5.addConstraint(Sketcher.Constraint("Horizontal", 1))
sketch5.addConstraint(Sketcher.Constraint("Vertical", 2))
sketch5.addConstraint(Sketcher.Constraint("Horizontal", 3))
sketch5.addConstraint(Sketcher.Constraint("DistanceX", 1, 2, 1, 1, 260.0))
sketch5.addConstraint(Sketcher.Constraint("DistanceY", 0, 2, 0, 1, 10.0))
sketch5.addConstraint(Sketcher.Constraint("DistanceX", -1, 1, 0, 2, 130.0))
sketch5.addConstraint(Sketcher.Constraint("DistanceY", 0, 2, -1, 1, 240.0))
pocket3 = body.newObject("PartDesign::Pocket", "Pocket002")
pocket3.Profile = sketch5
pocket3.Length = 10
pocket3.Reversed = True

sketch6 = body.newObject("Sketcher::SketchObject", "Sketch005")
sketch6.AttachmentSupport = (doc.getObject("YZ_Plane"), [""])
sketch6.MapMode = "FlatFace"
sketch6.addGeometry(Part.LineSegment(App.Vector(150, 250, 0), App.Vector(150, 240, 0)), False)
sketch6.addGeometry(Part.LineSegment(App.Vector(150, 240, 0), App.Vector(-150, 240, 0)), False)
sketch6.addGeometry(Part.LineSegment(App.Vector(-150, 240, 0), App.Vector(-150, 250, 0)), False)
sketch6.addGeometry(Part.LineSegment(App.Vector(-150, 250, 0), App.Vector(150, 250, 0)), False)
sketch6.addGeometry(Part.LineSegment(App.Vector(150, 160, 0), App.Vector(150, 150, 0)), False)
sketch6.addGeometry(Part.LineSegment(App.Vector(150, 150, 0), App.Vector(-150, 150, 0)), False)
sketch6.addGeometry(Part.LineSegment(App.Vector(-150, 150, 0), App.Vector(-150, 160, 0)), False)
sketch6.addGeometry(Part.LineSegment(App.Vector(-150, 160, 0), App.Vector(150, 160, 0)), False)
sketch6.addGeometry(Part.LineSegment(App.Vector(140, 90, 0), App.Vector(140, 80, 0)), False)
sketch6.addGeometry(Part.LineSegment(App.Vector(140, 80, 0), App.Vector(-140, 80, 0)), False)
sketch6.addGeometry(Part.LineSegment(App.Vector(-140, 80, 0), App.Vector(-140, 90, 0)), False)
sketch6.addGeometry(Part.LineSegment(App.Vector(-140, 90, 0), App.Vector(140, 90, 0)), False)
sketch6.addGeometry(Part.LineSegment(App.Vector(140, 20, 0), App.Vector(140, 10, 0)), False)
sketch6.addGeometry(Part.LineSegment(App.Vector(140, 10, 0), App.Vector(-140, 10, 0)), False)
sketch6.addGeometry(Part.LineSegment(App.Vector(-140, 10, 0), App.Vector(-140, 20, 0)), False)
sketch6.addGeometry(Part.LineSegment(App.Vector(-140, 20, 0), App.Vector(140, 20, 0)), False)
sketch6.addConstraint(Sketcher.Constraint("Coincident", 0, 2, 1, 1))
sketch6.addConstraint(Sketcher.Constraint("Coincident", 1, 2, 2, 1))
sketch6.addConstraint(Sketcher.Constraint("Coincident", 2, 2, 3, 1))
sketch6.addConstraint(Sketcher.Constraint("Coincident", 3, 2, 0, 1))
sketch6.addConstraint(Sketcher.Constraint("Coincident", 4, 2, 5, 1))
sketch6.addConstraint(Sketcher.Constraint("Coincident", 5, 2, 6, 1))
sketch6.addConstraint(Sketcher.Constraint("Coincident", 6, 2, 7, 1))
sketch6.addConstraint(Sketcher.Constraint("Coincident", 7, 2, 4, 1))
sketch6.addConstraint(Sketcher.Constraint("Coincident", 8, 2, 9, 1))
sketch6.addConstraint(Sketcher.Constraint("Coincident", 9, 2, 10, 1))
sketch6.addConstraint(Sketcher.Constraint("Coincident", 10, 2, 11, 1))
sketch6.addConstraint(Sketcher.Constraint("Coincident", 11, 2, 8, 1))
sketch6.addConstraint(Sketcher.Constraint("Coincident", 12, 2, 13, 1))
sketch6.addConstraint(Sketcher.Constraint("Coincident", 13, 2, 14, 1))
sketch6.addConstraint(Sketcher.Constraint("Coincident", 14, 2, 15, 1))
sketch6.addConstraint(Sketcher.Constraint("Coincident", 15, 2, 12, 1))
sketch6.addConstraint(Sketcher.Constraint("Vertical", 0))
sketch6.addConstraint(Sketcher.Constraint("Horizontal", 1))
sketch6.addConstraint(Sketcher.Constraint("Vertical", 2))
sketch6.addConstraint(Sketcher.Constraint("Horizontal", 3))
sketch6.addConstraint(Sketcher.Constraint("Vertical", 4))
sketch6.addConstraint(Sketcher.Constraint("Horizontal", 5))
sketch6.addConstraint(Sketcher.Constraint("Vertical", 6))
sketch6.addConstraint(Sketcher.Constraint("Horizontal", 7))
sketch6.addConstraint(Sketcher.Constraint("Vertical", 8))
sketch6.addConstraint(Sketcher.Constraint("Horizontal", 9))
sketch6.addConstraint(Sketcher.Constraint("Vertical", 10))
sketch6.addConstraint(Sketcher.Constraint("Horizontal", 11))
sketch6.addConstraint(Sketcher.Constraint("Vertical", 12))
sketch6.addConstraint(Sketcher.Constraint("Horizontal", 13))
sketch6.addConstraint(Sketcher.Constraint("Vertical", 14))
sketch6.addConstraint(Sketcher.Constraint("Horizontal", 15))
sketch6.addConstraint(Sketcher.Constraint("Vertical", 3, 2, 4, 2))
sketch6.addConstraint(Sketcher.Constraint("Vertical", 2, 2, 5, 2))
sketch6.addConstraint(Sketcher.Constraint("Vertical", 11, 2, 12, 2))
sketch6.addConstraint(Sketcher.Constraint("Vertical", 10, 2, 13, 2))
sketch6.addConstraint(Sketcher.Constraint("Equal", 2, 4))
sketch6.addConstraint(Sketcher.Constraint("Equal", 6, 8))
sketch6.addConstraint(Sketcher.Constraint("Equal", 10, 12))
sketch6.addConstraint(Sketcher.Constraint("DistanceX", 1, 2, 1, 1, 300.0))
sketch6.addConstraint(Sketcher.Constraint("DistanceX", 9, 2, 9, 1, 280.0))
sketch6.addConstraint(Sketcher.Constraint("DistanceY", 0, 2, 0, 1, 10.0))
sketch6.addConstraint(Sketcher.Constraint("DistanceX", -1, 1, 0, 2, 150.0))
sketch6.addConstraint(Sketcher.Constraint("DistanceY", -1, 1, 0, 2, 240.0))
sketch6.addConstraint(Sketcher.Constraint("DistanceY", -1, 1, 4, 2, 150.0))
sketch6.addConstraint(Sketcher.Constraint("DistanceX", -1, 1, 8, 2, 140.0))
sketch6.addConstraint(Sketcher.Constraint("DistanceY", -1, 1, 8, 2, 80.0))
sketch6.addConstraint(Sketcher.Constraint("DistanceY", -1, 1, 12, 2, 10.0))
pocket4 = body.newObject("PartDesign::Pocket", "Pocket003")
pocket4.Profile = sketch6
pocket4.Length = 10
pocket4.Reversed = True

doc.recompute()
